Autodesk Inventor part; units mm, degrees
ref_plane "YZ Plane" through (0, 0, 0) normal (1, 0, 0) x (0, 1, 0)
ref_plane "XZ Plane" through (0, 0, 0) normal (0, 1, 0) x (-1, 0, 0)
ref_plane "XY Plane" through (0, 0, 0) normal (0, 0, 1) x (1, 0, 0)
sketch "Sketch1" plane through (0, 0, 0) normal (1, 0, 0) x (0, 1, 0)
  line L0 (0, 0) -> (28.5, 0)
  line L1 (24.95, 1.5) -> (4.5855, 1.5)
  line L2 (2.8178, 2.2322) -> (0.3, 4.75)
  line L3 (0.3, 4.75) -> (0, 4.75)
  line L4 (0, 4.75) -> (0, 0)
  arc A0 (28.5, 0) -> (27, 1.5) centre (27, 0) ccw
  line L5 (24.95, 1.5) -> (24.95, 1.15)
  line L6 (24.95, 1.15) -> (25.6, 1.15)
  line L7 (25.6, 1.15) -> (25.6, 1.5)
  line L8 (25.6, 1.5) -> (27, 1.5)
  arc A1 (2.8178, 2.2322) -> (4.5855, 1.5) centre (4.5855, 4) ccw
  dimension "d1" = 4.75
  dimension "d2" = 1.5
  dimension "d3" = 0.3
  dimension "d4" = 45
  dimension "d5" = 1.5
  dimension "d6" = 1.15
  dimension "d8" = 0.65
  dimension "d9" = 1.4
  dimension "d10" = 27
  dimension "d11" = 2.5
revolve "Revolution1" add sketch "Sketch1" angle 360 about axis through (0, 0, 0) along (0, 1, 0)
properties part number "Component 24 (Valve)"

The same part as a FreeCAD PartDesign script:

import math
import FreeCAD as App
import Part
import Sketcher
Q = App.Units.Quantity

doc = App.newDocument("Part")
body = doc.addObject("PartDesign::Body", "Body")

sketch1 = body.newObject("Sketcher::SketchObject", "Sketch")
sketch1.AttachmentSupport = (doc.getObject("YZ_Plane"), [""])
sketch1.MapMode = "FlatFace"
sketch1.addGeometry(Part.LineSegment(App.Vector(0, 4.75, 0), App.Vector(0, 0, 0)), False)
sketch1.addGeometry(Part.LineSegment(App.Vector(0, 0, 0), App.Vector(28.5, 0, 0)), False)
sketch1.addGeometry(Part.ArcOfCircle(Part.Circle(App.Vector(27, 0, 0), App.Vector(0, 0, 1), 1.5), math.radians(0), math.radians(90)), False)
sketch1.addGeometry(Part.LineSegment(App.Vector(27, 1.5, 0), App.Vector(25.6, 1.5, 0)), False)
sketch1.addGeometry(Part.LineSegment(App.Vector(25.6, 1.5, 0), App.Vector(25.6, 1.15, 0)), False)
sketch1.addGeometry(Part.LineSegment(App.Vector(25.6, 1.15, 0), App.Vector(24.95, 1.15, 0)), False)
sketch1.addGeometry(Part.LineSegment(App.Vector(24.95, 1.15, 0), App.Vector(24.95, 1.5, 0)), False)
sketch1.addGeometry(Part.LineSegment(App.Vector(24.95, 1.5, 0), App.Vector(4.59, 1.5, 0)), False)
sketch1.addGeometry(Part.ArcOfCircle(Part.Circle(App.Vector(4.59, 4, 0), App.Vector(0, 0, 1), 2.5), math.radians(-135), math.radians(-90)), False)
sketch1.addGeometry(Part.LineSegment(App.Vector(2.82, 2.23, 0), App.Vector(0.3, 4.75, 0)), False)
sketch1.addGeometry(Part.LineSegment(App.Vector(0.3, 4.75, 0), App.Vector(0, 4.75, 0)), False)
sketch1.addConstraint(Sketcher.Constraint("Coincident", 0, 2, 1, 1))
sketch1.addConstraint(Sketcher.Constraint("Coincident", 1, 2, 2, 1))
sketch1.addConstraint(Sketcher.Constraint("Tangent", 2, 2, 3, 1))
sketch1.addConstraint(Sketcher.Constraint("Coincident", 3, 2, 4, 1))
sketch1.addConstraint(Sketcher.Constraint("Coincident", 4, 2, 5, 1))
sketch1.addConstraint(Sketcher.Constraint("Coincident", 5, 2, 6, 1))
sketch1.addConstraint(Sketcher.Constraint("Coincident", 6, 2, 7, 1))
sketch1.addConstraint(Sketcher.Constraint("Tangent", 7, 2, 8, 2))
sketch1.addConstraint(Sketcher.Constraint("Tangent", 8, 1, 9, 1))
sketch1.addConstraint(Sketcher.Constraint("Coincident", 9, 2, 10, 1))
sketch1.addConstraint(Sketcher.Constraint("Coincident", 10, 2, 0, 1))
sketch1.addConstraint(Sketcher.Constraint("Vertical", 0))
sketch1.addConstraint(Sketcher.Constraint("Horizontal", 1))
sketch1.addConstraint(Sketcher.Constraint("Horizontal", 3))
sketch1.addConstraint(Sketcher.Constraint("Vertical", 4))
sketch1.addConstraint(Sketcher.Constraint("Horizontal", 5))
sketch1.addConstraint(Sketcher.Constraint("Vertical", 6))
sketch1.addConstraint(Sketcher.Constraint("Horizontal", 7))
sketch1.addConstraint(Sketcher.Constraint("Horizontal", 10))
sketch1.addConstraint(Sketcher.Constraint("Coincident", 0, 2, -1, 1))
sketch1.addConstraint(Sketcher.Constraint("PointOnObject", 2, 3, -1))
sketch1.addConstraint(Sketcher.Constraint("Horizontal", 3, 2, 6, 2))
sketch1.addConstraint(Sketcher.Constraint("Radius", 2, 1.5))
sketch1.addConstraint(Sketcher.Constraint("Radius", 8, 2.5))
sketch1.addConstraint(Sketcher.Constraint("DistanceX", 3, 2, 3, 1, 1.4))
sketch1.addConstraint(Sketcher.Constraint("DistanceX", 10, 2, 10, 1, 0.3))
sketch1.addConstraint(Sketcher.Constraint("DistanceX", -1, 1, 2, 3, 27.0))
sketch1.addConstraint(Sketcher.Constraint("DistanceX", 5, 2, 5, 1, 0.65))
sketch1.addConstraint(Sketcher.Constraint("DistanceY", 0, 2, 0, 1, 4.75))
sketch1.addConstraint(Sketcher.Constraint("DistanceY", -1, 1, 4, 2, 1.15))
sketch1.addConstraint(Sketcher.Constraint("Angle", 9, Q("135 deg")))
revolution = body.newObject("PartDesign::Revolution", "Revolution")
revolution.Profile = sketch1
revolution.ReferenceAxis = (sketch1, ["H_Axis"])
revolution.Angle = 360

doc.recompute()
